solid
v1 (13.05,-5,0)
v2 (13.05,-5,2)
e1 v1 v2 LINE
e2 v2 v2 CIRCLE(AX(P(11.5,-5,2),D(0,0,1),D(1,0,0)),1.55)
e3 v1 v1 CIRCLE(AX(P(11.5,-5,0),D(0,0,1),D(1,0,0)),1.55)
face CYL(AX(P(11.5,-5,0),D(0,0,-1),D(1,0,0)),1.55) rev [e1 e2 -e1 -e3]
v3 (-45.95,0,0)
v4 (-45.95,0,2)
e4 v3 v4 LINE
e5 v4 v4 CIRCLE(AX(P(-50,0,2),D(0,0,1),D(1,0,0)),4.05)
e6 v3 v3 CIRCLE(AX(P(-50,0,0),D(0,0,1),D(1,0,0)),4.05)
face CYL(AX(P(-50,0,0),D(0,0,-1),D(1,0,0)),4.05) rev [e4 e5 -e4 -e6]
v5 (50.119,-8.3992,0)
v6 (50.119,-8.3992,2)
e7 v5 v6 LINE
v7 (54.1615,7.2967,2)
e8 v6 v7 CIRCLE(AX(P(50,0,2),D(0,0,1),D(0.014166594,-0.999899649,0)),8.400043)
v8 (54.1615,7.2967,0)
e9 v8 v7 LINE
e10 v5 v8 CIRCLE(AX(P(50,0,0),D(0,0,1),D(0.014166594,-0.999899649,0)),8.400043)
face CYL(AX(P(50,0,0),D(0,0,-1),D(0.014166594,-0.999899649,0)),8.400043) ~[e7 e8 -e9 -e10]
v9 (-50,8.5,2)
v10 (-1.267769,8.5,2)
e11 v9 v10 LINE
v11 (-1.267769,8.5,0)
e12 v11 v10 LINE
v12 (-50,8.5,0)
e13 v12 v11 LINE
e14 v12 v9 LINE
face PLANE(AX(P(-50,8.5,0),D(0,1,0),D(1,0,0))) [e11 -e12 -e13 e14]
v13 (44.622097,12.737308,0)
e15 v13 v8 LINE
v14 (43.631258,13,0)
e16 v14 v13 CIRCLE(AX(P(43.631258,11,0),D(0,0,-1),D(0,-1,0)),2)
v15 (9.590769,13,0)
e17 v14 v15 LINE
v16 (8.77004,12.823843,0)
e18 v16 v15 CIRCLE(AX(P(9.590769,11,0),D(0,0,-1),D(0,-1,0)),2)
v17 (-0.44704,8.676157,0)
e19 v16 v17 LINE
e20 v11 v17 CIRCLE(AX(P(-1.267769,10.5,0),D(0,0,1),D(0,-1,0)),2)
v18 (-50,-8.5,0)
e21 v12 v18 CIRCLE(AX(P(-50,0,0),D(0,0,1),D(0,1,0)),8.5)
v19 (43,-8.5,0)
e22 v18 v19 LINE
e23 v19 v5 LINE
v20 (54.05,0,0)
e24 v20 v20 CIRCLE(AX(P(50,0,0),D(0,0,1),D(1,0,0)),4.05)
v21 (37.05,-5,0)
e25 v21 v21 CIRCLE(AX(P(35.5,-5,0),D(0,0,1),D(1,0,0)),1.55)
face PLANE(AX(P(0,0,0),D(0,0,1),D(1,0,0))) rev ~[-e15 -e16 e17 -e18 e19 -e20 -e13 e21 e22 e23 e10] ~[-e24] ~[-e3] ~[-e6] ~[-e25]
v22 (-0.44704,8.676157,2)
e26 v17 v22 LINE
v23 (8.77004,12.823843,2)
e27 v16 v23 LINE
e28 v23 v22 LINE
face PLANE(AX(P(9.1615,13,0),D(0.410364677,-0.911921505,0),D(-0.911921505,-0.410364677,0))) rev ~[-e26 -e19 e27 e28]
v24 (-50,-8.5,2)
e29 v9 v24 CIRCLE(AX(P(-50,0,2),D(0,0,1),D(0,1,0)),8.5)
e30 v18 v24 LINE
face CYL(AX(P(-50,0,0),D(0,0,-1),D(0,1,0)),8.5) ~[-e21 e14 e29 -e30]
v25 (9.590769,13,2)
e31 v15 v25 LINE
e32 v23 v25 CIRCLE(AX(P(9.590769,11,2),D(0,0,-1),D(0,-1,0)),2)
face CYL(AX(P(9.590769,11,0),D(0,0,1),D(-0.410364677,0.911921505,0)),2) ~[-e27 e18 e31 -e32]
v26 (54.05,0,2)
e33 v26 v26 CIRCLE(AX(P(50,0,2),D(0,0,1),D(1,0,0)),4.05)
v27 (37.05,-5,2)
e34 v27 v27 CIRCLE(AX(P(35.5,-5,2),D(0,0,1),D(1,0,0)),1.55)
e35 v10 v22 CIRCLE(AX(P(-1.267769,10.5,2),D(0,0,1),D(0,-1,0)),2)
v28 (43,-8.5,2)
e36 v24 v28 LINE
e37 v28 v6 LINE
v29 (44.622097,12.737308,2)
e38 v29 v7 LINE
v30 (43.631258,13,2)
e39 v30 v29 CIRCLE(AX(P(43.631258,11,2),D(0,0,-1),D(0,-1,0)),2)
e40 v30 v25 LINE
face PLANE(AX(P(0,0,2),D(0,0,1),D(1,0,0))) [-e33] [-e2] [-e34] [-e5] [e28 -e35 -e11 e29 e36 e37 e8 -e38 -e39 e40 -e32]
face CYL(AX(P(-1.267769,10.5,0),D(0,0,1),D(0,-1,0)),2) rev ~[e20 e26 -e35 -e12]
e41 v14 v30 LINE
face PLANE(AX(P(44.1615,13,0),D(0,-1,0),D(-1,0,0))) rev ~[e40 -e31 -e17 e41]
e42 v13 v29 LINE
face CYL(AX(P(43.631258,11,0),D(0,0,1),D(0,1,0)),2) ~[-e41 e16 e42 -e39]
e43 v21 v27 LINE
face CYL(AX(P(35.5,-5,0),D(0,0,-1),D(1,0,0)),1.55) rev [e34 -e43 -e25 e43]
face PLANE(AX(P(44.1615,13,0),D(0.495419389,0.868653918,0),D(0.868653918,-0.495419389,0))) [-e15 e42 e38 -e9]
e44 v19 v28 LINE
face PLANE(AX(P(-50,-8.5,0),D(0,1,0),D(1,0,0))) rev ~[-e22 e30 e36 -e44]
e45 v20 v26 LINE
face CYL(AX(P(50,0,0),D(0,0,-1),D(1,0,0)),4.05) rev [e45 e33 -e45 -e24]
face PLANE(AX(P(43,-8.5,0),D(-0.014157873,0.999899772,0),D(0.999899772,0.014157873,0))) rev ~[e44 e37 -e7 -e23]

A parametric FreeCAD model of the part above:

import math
import FreeCAD as App
import Part
import Sketcher

V = App.Vector
Q = App.Units.Quantity


def edges_at(feature, points):
    """Names of the edges that pass closest to the given points."""
    edges = feature.Shape.Edges
    near = lambda p: min(range(len(edges)), key=lambda i: edges[i].distToShape(Part.Vertex(*p))[0])
    return sorted({f"Edge{near(p) + 1}" for p in points})

doc = App.newDocument("Part")
body = doc.addObject("PartDesign::Body", "Body")

# Sketch on XY plane
sketch1 = doc.addObject("Sketcher::SketchObject", "Sketch")
body.addObject(sketch1)
sketch1.AttachmentSupport = (doc.XY_Plane, [""])
sketch1.MapMode = "FlatFace"
sketch1.addGeometry([
    Part.LineSegment(V(-0.8, 8.5, 0), V(-50, 8.5, 0)),  # 0
    Part.ArcOfCircle(Part.Circle(V(-50, 0, 0), V(0, 0, 1), 8.5), math.radians(90), math.radians(270)),  # 1
    Part.LineSegment(V(-50, -8.5, 0), V(43, -8.5, 0)),  # 2
    Part.LineSegment(V(43, -8.5, 0), V(50.1, -8.4, 0)),  # 3
    Part.ArcOfCircle(Part.Circle(V(50, 0, 0), V(0, 0, 1), 8.4), math.radians(-89), math.radians(60)),  # 4
    Part.LineSegment(V(54.2, 7.3, 0), V(44.2, 13, 0)),  # 5
    Part.LineSegment(V(44.2, 13, 0), V(9.2, 13, 0)),  # 6
    Part.LineSegment(V(9.2, 13, 0), V(-0.8, 8.5, 0)),  # 7
    Part.Circle(V(-50, 0, 0), V(0, 0, 1), 4),  # 8
    Part.Circle(V(11.5, -5, 0), V(0, 0, 1), 1.6),  # 9
    Part.Circle(V(35.5, -5, 0), V(0, 0, 1), 1.6),  # 10
    Part.Circle(V(50, 0, 0), V(0, 0, 1), 4),  # 11
], False)
sketch1.addConstraint([
    Sketcher.Constraint("Tangent", 0, 2, 1, 1),
    Sketcher.Constraint("Tangent", 1, 2, 2, 1),
    Sketcher.Constraint("Coincident", 2, 2, 3, 1),
    Sketcher.Constraint("Tangent", 3, 2, 4, 1),
    Sketcher.Constraint("Tangent", 4, 2, 5, 1),
    Sketcher.Constraint("Coincident", 5, 2, 6, 1),
    Sketcher.Constraint("Coincident", 6, 2, 7, 1),
    Sketcher.Constraint("Coincident", 7, 2, 0, 1),
    Sketcher.Constraint("Horizontal", 0),
    Sketcher.Constraint("Horizontal", 2),
    Sketcher.Constraint("Horizontal", 6),
    Sketcher.Constraint("Coincident", 8, 3, 1, 3),
    Sketcher.Constraint("Coincident", 11, 3, 4, 3),
    Sketcher.Constraint("Equal", 9, 10),
    Sketcher.Constraint("Equal", 8, 11),
    Sketcher.Constraint("Symmetric", 1, 3, 4, 3, -1, 1),
    Sketcher.Constraint("PointOnObject", 1, 3, -1),
    Sketcher.Constraint("Horizontal", 9, 3, 10, 3),
    Sketcher.Constraint("Diameter", 8, Q("8.1 mm")),
    Sketcher.Constraint("Diameter", 9, Q("3.1 mm")),
    Sketcher.Constraint("Radius", 1, Q("8.5 mm")),
    Sketcher.Constraint("Radius", 4, Q("8.4 mm")),
    Sketcher.Constraint("DistanceX", 6, 2, 6, 1, Q("35 mm")),
    Sketcher.Constraint("DistanceY", 9, 3, -1, 1, Q("5 mm")),
    Sketcher.Constraint("DistanceY", -1, 1, 5, 2, Q("13 mm")),
    Sketcher.Constraint("DistanceX", 1, 3, 4, 3, Q("100 mm")),
    Sketcher.Constraint("DistanceX", 2, 2, 4, 3, Q("7 mm")),
    Sketcher.Constraint("DistanceX", 5, 2, 4, 2, Q("10 mm")),
    Sketcher.Constraint("DistanceX", 7, 2, 6, 2, Q("10 mm")),
    Sketcher.Constraint("DistanceX", 9, 3, 10, 3, Q("24 mm")),
    Sketcher.Constraint("DistanceX", -1, 1, 9, 3, Q("11.5 mm")),
])
pad1 = doc.addObject("PartDesign::Pad", "Pad")
body.addObject(pad1)
pad1.Profile = sketch1
pad1.Length = 2
doc.recompute()

fillet = doc.addObject("PartDesign::Fillet", "Fillet")
body.addObject(fillet)
fillet.Base = (pad1, edges_at(pad1, [(-0.839, 8.5, 1), (9.162, 13, 1), (44.161, 13, 1)]))
fillet.Radius = 2

doc.recompute()
